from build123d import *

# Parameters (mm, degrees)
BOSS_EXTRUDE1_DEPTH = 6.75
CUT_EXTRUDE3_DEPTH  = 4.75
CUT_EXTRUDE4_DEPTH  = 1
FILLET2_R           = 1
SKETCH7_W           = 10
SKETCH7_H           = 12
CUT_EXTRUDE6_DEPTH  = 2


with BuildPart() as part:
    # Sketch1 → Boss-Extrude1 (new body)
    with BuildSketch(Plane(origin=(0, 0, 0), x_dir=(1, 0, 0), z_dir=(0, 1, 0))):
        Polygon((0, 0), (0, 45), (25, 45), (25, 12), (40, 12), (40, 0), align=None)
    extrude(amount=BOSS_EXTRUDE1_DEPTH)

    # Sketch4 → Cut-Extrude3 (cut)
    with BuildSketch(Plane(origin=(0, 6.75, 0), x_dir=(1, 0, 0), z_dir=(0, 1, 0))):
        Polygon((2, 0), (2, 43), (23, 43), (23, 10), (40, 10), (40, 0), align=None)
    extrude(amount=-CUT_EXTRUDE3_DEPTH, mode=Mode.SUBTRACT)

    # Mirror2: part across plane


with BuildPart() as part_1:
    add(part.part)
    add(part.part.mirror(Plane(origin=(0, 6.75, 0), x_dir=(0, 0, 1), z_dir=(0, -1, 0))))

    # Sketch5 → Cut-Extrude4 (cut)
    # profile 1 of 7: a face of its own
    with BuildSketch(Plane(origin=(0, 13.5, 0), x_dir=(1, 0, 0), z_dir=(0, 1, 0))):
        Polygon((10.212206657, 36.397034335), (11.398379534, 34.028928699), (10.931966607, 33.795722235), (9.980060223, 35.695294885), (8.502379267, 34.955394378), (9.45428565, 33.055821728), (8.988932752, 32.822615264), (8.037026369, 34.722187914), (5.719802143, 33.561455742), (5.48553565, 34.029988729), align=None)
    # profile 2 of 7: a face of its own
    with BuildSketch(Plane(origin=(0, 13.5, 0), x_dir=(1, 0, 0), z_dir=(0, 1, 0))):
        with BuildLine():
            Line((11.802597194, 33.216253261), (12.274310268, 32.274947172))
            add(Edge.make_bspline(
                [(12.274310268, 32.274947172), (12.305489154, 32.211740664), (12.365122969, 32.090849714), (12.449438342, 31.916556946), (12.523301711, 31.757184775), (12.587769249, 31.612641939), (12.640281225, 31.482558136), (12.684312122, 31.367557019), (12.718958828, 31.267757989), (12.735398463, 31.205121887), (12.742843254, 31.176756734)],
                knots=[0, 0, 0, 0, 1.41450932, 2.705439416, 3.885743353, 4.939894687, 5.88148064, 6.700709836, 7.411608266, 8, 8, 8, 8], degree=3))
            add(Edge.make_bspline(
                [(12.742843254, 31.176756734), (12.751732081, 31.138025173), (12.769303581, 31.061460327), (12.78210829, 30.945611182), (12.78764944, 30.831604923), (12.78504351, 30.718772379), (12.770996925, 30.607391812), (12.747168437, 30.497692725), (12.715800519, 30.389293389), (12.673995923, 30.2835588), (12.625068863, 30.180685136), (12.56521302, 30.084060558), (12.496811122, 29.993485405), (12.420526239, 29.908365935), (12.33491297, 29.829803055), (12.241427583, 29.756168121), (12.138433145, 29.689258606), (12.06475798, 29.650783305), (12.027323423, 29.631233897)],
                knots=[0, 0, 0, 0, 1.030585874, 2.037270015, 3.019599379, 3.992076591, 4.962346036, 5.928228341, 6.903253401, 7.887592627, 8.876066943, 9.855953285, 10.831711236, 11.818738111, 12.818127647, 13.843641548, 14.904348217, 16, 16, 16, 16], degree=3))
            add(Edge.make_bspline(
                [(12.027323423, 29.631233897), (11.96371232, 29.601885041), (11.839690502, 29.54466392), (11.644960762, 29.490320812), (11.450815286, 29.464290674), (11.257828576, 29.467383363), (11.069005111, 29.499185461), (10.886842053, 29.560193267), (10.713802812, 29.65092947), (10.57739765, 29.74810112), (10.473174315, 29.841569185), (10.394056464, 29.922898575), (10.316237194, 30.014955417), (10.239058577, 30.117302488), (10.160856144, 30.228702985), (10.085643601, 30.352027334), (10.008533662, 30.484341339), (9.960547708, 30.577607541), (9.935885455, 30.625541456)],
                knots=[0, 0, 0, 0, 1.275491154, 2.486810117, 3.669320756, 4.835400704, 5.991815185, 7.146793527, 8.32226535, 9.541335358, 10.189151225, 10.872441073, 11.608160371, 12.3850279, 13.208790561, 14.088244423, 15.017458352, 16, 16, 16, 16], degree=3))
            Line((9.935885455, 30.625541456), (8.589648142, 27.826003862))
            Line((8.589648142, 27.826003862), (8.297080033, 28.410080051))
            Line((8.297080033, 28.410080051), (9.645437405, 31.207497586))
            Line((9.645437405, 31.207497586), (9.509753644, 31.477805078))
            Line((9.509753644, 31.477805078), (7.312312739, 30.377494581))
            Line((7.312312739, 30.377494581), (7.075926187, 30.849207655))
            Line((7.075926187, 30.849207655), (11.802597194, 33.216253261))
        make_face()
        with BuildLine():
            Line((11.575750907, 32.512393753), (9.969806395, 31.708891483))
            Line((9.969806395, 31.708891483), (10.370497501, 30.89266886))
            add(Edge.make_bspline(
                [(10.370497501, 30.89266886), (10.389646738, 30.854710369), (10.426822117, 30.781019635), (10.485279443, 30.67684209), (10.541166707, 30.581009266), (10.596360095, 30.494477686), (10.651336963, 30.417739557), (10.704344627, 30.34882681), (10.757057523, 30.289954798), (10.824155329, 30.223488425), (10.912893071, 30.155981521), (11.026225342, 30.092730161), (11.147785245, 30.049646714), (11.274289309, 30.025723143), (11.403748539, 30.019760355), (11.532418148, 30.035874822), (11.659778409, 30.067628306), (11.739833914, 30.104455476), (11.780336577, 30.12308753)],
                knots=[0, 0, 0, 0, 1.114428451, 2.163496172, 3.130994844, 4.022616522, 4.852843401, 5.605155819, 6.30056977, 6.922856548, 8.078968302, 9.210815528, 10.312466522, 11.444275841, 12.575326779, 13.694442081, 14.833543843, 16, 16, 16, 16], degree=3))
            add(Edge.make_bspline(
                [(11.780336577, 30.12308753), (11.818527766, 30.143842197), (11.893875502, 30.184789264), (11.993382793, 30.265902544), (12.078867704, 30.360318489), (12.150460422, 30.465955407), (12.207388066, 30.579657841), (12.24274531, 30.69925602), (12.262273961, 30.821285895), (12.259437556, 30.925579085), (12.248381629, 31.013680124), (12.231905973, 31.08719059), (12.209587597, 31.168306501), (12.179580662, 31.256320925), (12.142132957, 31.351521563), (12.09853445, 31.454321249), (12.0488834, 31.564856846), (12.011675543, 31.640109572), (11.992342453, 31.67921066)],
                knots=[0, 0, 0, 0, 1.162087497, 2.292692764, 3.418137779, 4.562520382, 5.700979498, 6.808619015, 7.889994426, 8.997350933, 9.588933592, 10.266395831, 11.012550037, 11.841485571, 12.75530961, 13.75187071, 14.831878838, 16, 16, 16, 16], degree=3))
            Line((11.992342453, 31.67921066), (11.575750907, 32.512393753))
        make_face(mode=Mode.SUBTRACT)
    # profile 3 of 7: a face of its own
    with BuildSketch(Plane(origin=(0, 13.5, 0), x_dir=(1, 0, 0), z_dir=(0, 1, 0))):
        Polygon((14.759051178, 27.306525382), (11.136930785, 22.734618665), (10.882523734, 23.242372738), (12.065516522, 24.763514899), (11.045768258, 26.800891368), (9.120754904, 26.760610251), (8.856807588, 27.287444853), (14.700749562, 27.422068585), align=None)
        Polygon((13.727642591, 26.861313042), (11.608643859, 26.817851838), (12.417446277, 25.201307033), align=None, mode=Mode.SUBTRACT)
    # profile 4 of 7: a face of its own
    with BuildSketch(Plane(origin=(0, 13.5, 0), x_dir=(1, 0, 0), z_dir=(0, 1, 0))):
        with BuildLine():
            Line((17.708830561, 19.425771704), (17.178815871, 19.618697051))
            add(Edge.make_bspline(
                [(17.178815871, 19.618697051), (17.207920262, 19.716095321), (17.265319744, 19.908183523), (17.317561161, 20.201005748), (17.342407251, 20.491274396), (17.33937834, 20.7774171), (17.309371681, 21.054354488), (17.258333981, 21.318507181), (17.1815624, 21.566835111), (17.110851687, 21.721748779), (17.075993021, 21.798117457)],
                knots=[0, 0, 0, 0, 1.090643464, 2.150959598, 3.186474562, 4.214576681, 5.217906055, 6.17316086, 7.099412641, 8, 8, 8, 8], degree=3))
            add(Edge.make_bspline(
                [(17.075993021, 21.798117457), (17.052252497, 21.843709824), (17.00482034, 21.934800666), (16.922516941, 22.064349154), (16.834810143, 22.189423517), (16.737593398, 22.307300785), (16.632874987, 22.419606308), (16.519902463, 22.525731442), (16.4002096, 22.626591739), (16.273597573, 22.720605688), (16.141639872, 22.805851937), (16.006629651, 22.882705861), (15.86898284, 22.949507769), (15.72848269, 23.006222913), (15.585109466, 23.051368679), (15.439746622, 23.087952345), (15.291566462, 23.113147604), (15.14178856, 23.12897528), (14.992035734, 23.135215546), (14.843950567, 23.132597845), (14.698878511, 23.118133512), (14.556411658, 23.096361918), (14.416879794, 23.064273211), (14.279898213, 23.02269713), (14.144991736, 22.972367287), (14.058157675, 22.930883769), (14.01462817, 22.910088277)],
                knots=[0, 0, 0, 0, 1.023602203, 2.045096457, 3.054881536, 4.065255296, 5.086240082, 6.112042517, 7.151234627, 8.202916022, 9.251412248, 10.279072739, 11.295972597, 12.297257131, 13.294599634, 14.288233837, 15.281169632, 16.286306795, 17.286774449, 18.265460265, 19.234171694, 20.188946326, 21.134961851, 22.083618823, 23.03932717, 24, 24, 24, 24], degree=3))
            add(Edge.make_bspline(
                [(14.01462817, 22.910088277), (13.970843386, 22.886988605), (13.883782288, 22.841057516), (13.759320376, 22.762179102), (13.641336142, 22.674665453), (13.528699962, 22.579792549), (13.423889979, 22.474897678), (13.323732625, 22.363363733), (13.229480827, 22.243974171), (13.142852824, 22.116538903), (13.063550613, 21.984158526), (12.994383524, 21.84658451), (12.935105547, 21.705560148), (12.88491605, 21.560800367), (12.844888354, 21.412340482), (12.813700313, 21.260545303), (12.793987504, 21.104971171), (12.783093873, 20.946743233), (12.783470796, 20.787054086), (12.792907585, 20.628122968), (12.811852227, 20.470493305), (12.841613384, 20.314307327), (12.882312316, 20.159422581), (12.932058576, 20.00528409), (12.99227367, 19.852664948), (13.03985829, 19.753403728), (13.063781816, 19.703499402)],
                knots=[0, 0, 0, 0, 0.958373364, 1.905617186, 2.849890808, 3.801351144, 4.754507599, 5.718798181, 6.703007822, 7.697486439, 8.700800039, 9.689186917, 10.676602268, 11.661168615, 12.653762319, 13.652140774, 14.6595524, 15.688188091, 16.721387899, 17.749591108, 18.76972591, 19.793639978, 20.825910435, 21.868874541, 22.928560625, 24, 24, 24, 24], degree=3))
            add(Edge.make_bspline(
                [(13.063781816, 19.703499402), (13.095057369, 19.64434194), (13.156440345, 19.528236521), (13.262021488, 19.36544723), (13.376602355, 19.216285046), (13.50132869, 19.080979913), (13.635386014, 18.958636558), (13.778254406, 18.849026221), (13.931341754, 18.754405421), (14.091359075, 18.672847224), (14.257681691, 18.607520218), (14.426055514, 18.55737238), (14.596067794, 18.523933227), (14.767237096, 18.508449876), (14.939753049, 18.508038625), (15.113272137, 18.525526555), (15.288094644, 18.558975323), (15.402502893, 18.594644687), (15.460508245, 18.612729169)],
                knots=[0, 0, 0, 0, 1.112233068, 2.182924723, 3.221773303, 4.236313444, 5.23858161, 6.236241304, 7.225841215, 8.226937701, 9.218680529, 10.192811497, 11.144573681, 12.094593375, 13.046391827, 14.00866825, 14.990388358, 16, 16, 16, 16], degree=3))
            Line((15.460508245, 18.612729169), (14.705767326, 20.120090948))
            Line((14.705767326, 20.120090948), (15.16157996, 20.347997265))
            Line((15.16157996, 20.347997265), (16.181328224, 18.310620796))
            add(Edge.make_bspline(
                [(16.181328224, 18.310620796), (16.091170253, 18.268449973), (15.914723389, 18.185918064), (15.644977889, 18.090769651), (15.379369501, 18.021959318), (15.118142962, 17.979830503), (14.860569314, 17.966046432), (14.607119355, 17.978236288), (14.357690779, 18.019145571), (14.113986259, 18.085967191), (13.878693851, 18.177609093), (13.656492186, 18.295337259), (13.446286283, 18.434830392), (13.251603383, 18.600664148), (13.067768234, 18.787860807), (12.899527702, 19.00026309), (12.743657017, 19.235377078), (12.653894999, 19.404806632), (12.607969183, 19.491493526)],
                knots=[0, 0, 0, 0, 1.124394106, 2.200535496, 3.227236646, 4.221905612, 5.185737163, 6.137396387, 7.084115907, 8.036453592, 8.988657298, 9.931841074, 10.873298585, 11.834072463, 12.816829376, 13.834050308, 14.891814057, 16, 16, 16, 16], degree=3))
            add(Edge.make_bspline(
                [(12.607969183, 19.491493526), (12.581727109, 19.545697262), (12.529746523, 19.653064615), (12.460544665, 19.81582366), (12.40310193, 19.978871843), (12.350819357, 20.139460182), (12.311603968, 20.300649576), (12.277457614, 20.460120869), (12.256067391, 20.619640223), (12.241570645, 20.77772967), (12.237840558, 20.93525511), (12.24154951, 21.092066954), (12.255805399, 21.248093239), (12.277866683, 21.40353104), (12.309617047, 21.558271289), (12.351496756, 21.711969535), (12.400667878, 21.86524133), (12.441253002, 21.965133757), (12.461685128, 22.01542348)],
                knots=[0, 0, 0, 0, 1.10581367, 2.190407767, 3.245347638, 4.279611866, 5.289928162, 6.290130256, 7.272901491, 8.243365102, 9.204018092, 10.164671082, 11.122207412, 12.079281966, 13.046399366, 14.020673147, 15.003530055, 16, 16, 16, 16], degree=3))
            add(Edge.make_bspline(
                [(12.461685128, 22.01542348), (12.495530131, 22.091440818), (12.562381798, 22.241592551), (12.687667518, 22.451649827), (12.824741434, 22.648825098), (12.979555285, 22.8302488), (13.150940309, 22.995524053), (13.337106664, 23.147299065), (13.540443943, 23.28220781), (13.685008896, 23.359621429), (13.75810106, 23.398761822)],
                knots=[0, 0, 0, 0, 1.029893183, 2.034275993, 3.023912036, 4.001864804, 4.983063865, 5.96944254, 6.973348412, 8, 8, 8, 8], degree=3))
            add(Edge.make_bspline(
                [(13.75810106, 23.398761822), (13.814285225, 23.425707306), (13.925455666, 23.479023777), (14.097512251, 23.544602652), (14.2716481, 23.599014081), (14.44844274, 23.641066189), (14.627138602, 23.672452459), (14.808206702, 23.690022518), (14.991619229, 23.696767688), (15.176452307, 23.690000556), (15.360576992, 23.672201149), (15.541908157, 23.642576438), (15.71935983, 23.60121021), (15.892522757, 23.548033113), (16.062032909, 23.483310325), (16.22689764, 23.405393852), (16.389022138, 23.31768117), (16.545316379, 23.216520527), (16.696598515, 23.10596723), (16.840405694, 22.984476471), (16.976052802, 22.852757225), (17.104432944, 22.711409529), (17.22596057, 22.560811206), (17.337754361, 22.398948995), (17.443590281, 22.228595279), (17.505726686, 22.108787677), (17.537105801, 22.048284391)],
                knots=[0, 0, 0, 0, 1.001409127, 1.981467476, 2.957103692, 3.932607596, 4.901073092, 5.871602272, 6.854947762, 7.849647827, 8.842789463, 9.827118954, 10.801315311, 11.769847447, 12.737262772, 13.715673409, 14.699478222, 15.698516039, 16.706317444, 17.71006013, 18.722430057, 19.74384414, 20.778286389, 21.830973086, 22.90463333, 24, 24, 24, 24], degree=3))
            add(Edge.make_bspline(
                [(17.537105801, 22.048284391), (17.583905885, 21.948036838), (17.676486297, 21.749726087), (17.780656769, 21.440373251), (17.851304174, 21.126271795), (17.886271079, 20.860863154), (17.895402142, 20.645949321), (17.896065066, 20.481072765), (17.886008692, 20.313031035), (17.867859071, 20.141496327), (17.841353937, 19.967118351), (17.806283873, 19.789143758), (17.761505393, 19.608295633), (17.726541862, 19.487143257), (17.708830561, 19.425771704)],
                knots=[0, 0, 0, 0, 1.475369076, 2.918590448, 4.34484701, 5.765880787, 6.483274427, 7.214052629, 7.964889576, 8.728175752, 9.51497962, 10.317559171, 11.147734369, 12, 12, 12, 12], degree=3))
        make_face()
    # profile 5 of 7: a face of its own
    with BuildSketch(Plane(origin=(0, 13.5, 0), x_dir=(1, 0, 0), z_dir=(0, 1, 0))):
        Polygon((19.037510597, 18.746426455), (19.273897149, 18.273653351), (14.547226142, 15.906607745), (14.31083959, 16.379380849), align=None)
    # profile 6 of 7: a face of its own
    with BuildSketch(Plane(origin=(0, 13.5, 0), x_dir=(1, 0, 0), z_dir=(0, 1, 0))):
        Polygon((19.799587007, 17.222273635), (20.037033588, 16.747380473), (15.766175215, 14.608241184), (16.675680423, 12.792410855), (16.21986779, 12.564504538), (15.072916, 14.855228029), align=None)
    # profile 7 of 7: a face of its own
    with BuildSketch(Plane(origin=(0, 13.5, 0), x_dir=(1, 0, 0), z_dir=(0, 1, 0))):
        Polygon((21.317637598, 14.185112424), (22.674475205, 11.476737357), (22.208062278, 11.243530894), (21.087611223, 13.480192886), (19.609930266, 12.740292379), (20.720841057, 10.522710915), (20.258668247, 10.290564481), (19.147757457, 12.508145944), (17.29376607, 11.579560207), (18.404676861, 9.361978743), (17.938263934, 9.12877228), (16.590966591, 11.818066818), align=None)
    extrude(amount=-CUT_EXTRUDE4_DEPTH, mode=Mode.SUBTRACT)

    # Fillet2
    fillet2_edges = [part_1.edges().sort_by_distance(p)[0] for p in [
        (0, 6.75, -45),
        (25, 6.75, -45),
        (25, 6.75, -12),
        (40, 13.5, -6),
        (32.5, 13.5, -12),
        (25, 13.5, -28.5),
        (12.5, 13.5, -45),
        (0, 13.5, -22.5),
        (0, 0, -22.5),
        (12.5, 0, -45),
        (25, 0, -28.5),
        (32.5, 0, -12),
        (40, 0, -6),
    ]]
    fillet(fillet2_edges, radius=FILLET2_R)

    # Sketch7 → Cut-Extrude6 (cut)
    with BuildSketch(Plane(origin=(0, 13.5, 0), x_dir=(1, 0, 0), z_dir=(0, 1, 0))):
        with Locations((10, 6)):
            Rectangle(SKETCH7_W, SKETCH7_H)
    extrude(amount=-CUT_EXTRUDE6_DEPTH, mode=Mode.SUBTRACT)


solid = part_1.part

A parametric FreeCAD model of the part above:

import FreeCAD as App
import Part
import Sketcher
Q = App.Units.Quantity


def edges_at(feature, points):
    """Names of the edges that pass closest to the given points."""
    edges = feature.Shape.Edges
    near = lambda p: min(range(len(edges)), key=lambda i: edges[i].distToShape(Part.Vertex(*p))[0])
    return sorted({f"Edge{near(p) + 1}" for p in points})


def add_polygon(sketch, points):
    """Adds a closed chain of lines whose ends are joined by coincident constraints."""
    first, n = sketch.GeometryCount, len(points)
    for a, b in zip(points, points[1:] + points[:1]):
        sketch.addGeometry(Part.LineSegment(App.Vector(*a, 0), App.Vector(*b, 0)), False)
    for i in range(n):
        sketch.addConstraint(Sketcher.Constraint("Coincident", first + i, 2, first + (i + 1) % n, 1))

doc = App.newDocument("Part")
body = doc.addObject("PartDesign::Body", "Body")

sketch1 = body.newObject("Sketcher::SketchObject", "Sketch")
sketch1.AttachmentSupport = (doc.getObject("XZ_Plane"), [""])
sketch1.MapMode = "FlatFace"
add_polygon(sketch1, [(0, -45), (0, 0), (40, 0), (40, -12), (25, -12), (25, -45)])
sketch1.addConstraint(Sketcher.Constraint("Vertical", 0))
sketch1.addConstraint(Sketcher.Constraint("Horizontal", 1))
sketch1.addConstraint(Sketcher.Constraint("Vertical", 2))
sketch1.addConstraint(Sketcher.Constraint("Horizontal", 3))
sketch1.addConstraint(Sketcher.Constraint("Vertical", 4))
sketch1.addConstraint(Sketcher.Constraint("Horizontal", 5))
sketch1.addConstraint(Sketcher.Constraint("Coincident", 0, 2, -1, 1))
sketch1.addConstraint(Sketcher.Constraint("DistanceX", 1, 1, 1, 2, Q("40 mm")))
sketch1.addConstraint(Sketcher.Constraint("DistanceX", 3, 2, 3, 1, Q("15 mm")))
sketch1.addConstraint(Sketcher.Constraint("DistanceY", 0, 1, 0, 2, Q("45 mm")))
sketch1.addConstraint(Sketcher.Constraint("DistanceY", 2, 2, 2, 1, Q("12 mm")))
pad1 = body.newObject("PartDesign::Pad", "Pad")
pad1.Profile = sketch1
pad1.Length = 6.75
pad1.Reversed = True

sketch2 = body.newObject("Sketcher::SketchObject", "Sketch001")
sketch2.AttachmentSupport = (doc.getObject("XZ_Plane"), [""])
sketch2.MapMode = "FlatFace"
sketch2.AttachmentOffset = App.Placement(App.Vector(0, 0, -6.75), App.Rotation())
add_polygon(sketch2, [(2, -43), (2, 0), (40, 0), (40, -10), (23, -10), (23, -43)])
sketch2.addConstraint(Sketcher.Constraint("Vertical", 0))
sketch2.addConstraint(Sketcher.Constraint("Horizontal", 1))
sketch2.addConstraint(Sketcher.Constraint("Vertical", 2))
sketch2.addConstraint(Sketcher.Constraint("Horizontal", 3))
sketch2.addConstraint(Sketcher.Constraint("Vertical", 4))
sketch2.addConstraint(Sketcher.Constraint("Horizontal", 5))
sketch2.addConstraint(Sketcher.Constraint("PointOnObject", 0, 2, -1))
sketch2.addConstraint(Sketcher.Constraint("DistanceX", 1, 1, 1, 2, Q("38 mm")))
sketch2.addConstraint(Sketcher.Constraint("DistanceX", 3, 2, 3, 1, Q("17 mm")))
sketch2.addConstraint(Sketcher.Constraint("DistanceY", 0, 1, 0, 2, Q("43 mm")))
sketch2.addConstraint(Sketcher.Constraint("DistanceY", 2, 2, 2, 1, Q("10 mm")))
sketch2.addConstraint(Sketcher.Constraint("DistanceX", -1, 1, 0, 2, Q("2 mm")))
pocket1 = body.newObject("PartDesign::Pocket", "Pocket")
pocket1.Profile = sketch2
pocket1.Length = 4.75
pocket1.Reversed = True
body2 = doc.addObject("PartDesign::Body", "Body001")
doc.recompute()

body2.BaseFeature = body
doc.recompute()

mirroring = doc.addObject("Part::Mirroring", "Mirroring")
mirroring.Source = body
mirroring.Base = App.Vector(0, 6.75, 0)
mirroring.Normal = App.Vector(0, -1, 0)
body3 = doc.addObject("PartDesign::Body", "Body002")
body3.BaseFeature = mirroring
boolean = body2.newObject("PartDesign::Boolean", "Boolean")
boolean.Type = "Fuse"
boolean.addObjects([body3])
doc.recompute()

sketch3 = body2.newObject("Sketcher::SketchObject", "Sketch002")
sketch3.AttachmentSupport = (doc.getObject("XZ_Plane001"), [""])
sketch3.MapMode = "FlatFace"
sketch3.AttachmentOffset = App.Placement(App.Vector(0, 0, -13.5), App.Rotation())
add_polygon(sketch3, [(11.39838, -34.028929), (10.212207, -36.397034), (5.485536, -34.029989), (5.719802, -33.561456), (8.037026, -34.722188), (8.988933, -32.822615), (9.454286, -33.055822), (8.502379, -34.955394), (9.98006, -35.695295), (10.931967, -33.795722)])
sketch3.addGeometry(Part.LineSegment(App.Vector(12.27431, -32.274947, 0), App.Vector(11.802597, -33.216253, 0)), False)
sketch3.addGeometry(Part.LineSegment(App.Vector(11.802597, -33.216253, 0), App.Vector(7.075926, -30.849208, 0)), False)
sketch3.addGeometry(Part.LineSegment(App.Vector(7.075926, -30.849208, 0), App.Vector(7.312313, -30.377495, 0)), False)
sketch3.addGeometry(Part.LineSegment(App.Vector(7.312313, -30.377495, 0), App.Vector(9.509754, -31.477805, 0)), False)
sketch3.addGeometry(Part.LineSegment(App.Vector(9.509754, -31.477805, 0), App.Vector(9.645437, -31.207498, 0)), False)
sketch3.addGeometry(Part.LineSegment(App.Vector(9.645437, -31.207498, 0), App.Vector(8.29708, -28.41008, 0)), False)
sketch3.addGeometry(Part.LineSegment(App.Vector(8.29708, -28.41008, 0), App.Vector(8.589648, -27.826004, 0)), False)
sketch3.addGeometry(Part.LineSegment(App.Vector(8.589648, -27.826004, 0), App.Vector(9.935885, -30.625541, 0)), False)
sketch3.addGeometry(Part.BSplineCurve([App.Vector(12.027323, -29.631234, 0), App.Vector(11.963712, -29.601885, 0), App.Vector(11.839691, -29.544664, 0), App.Vector(11.644961, -29.490321, 0), App.Vector(11.450815, -29.464291, 0), App.Vector(11.257829, -29.467383, 0), App.Vector(11.069005, -29.499185, 0), App.Vector(10.886842, -29.560193, 0), App.Vector(10.713803, -29.650929, 0), App.Vector(10.577398, -29.748101, 0), App.Vector(10.473174, -29.841569, 0), App.Vector(10.394056, -29.922899, 0), App.Vector(10.316237, -30.014955, 0), App.Vector(10.239059, -30.117302, 0), App.Vector(10.160856, -30.228703, 0), App.Vector(10.085644, -30.352027, 0), App.Vector(10.008534, -30.484341, 0), App.Vector(9.960548, -30.577608, 0), App.Vector(9.935885, -30.625541, 0)], [4, 1, 1, 1, 1, 1, 1, 1, 1, 1, 1, 1, 1, 1, 1, 1, 4], [0, 1.275491154, 2.486810117, 3.669320756, 4.835400704, 5.991815185, 7.146793527, 8.32226535, 9.541335358, 10.189151225, 10.872441073, 11.608160371, 12.3850279, 13.208790561, 14.088244423, 15.017458352, 16], False, 3, [1, 1, 1, 1, 1, 1, 1, 1, 1, 1, 1, 1, 1, 1, 1, 1, 1, 1, 1], False), False)
sketch3.addGeometry(Part.BSplineCurve([App.Vector(12.742843, -31.176757, 0), App.Vector(12.751732, -31.138025, 0), App.Vector(12.769304, -31.06146, 0), App.Vector(12.782108, -30.945611, 0), App.Vector(12.787649, -30.831605, 0), App.Vector(12.785044, -30.718772, 0), App.Vector(12.770997, -30.607392, 0), App.Vector(12.747168, -30.497693, 0), App.Vector(12.715801, -30.389293, 0), App.Vector(12.673996, -30.283559, 0), App.Vector(12.625069, -30.180685, 0), App.Vector(12.565213, -30.084061, 0), App.Vector(12.496811, -29.993485, 0), App.Vector(12.420526, -29.908366, 0), App.Vector(12.334913, -29.829803, 0), App.Vector(12.241428, -29.756168, 0), App.Vector(12.138433, -29.689259, 0), App.Vector(12.064758, -29.650783, 0), App.Vector(12.027323, -29.631234, 0)], [4, 1, 1, 1, 1, 1, 1, 1, 1, 1, 1, 1, 1, 1, 1, 1, 4], [0, 1.030585874, 2.037270015, 3.019599379, 3.992076591, 4.962346036, 5.928228341, 6.903253401, 7.887592627, 8.876066943, 9.855953285, 10.831711236, 11.818738111, 12.818127647, 13.843641548, 14.904348217, 16], False, 3, [1, 1, 1, 1, 1, 1, 1, 1, 1, 1, 1, 1, 1, 1, 1, 1, 1, 1, 1], False), False)
sketch3.addGeometry(Part.BSplineCurve([App.Vector(12.27431, -32.274947, 0), App.Vector(12.305489, -32.211741, 0), App.Vector(12.365123, -32.09085, 0), App.Vector(12.449438, -31.916557, 0), App.Vector(12.523302, -31.757185, 0), App.Vector(12.587769, -31.612642, 0), App.Vector(12.640281, -31.482558, 0), App.Vector(12.684312, -31.367557, 0), App.Vector(12.718959, -31.267758, 0), App.Vector(12.735398, -31.205122, 0), App.Vector(12.742843, -31.176757, 0)], [4, 1, 1, 1, 1, 1, 1, 1, 4], [0, 1.41450932, 2.705439416, 3.885743353, 4.939894687, 5.88148064, 6.700709836, 7.411608266, 8], False, 3, [1, 1, 1, 1, 1, 1, 1, 1, 1, 1, 1], False), False)
sketch3.addGeometry(Part.LineSegment(App.Vector(11.575751, -32.512394, 0), App.Vector(11.992342, -31.679211, 0)), False)
sketch3.addGeometry(Part.BSplineCurve([App.Vector(11.780337, -30.123088, 0), App.Vector(11.818528, -30.143842, 0), App.Vector(11.893876, -30.184789, 0), App.Vector(11.993383, -30.265903, 0), App.Vector(12.078868, -30.360318, 0), App.Vector(12.15046, -30.465955, 0), App.Vector(12.207388, -30.579658, 0), App.Vector(12.242745, -30.699256, 0), App.Vector(12.262274, -30.821286, 0), App.Vector(12.259438, -30.925579, 0), App.Vector(12.248382, -31.01368, 0), App.Vector(12.231906, -31.087191, 0), App.Vector(12.209588, -31.168307, 0), App.Vector(12.179581, -31.256321, 0), App.Vector(12.142133, -31.351522, 0), App.Vector(12.098534, -31.454321, 0), App.Vector(12.048883, -31.564857, 0), App.Vector(12.011676, -31.64011, 0), App.Vector(11.992342, -31.679211, 0)], [4, 1, 1, 1, 1, 1, 1, 1, 1, 1, 1, 1, 1, 1, 1, 1, 4], [0, 1.162087497, 2.292692764, 3.418137779, 4.562520382, 5.700979498, 6.808619015, 7.889994426, 8.997350933, 9.588933592, 10.266395831, 11.012550037, 11.841485571, 12.75530961, 13.75187071, 14.831878838, 16], False, 3, [1, 1, 1, 1, 1, 1, 1, 1, 1, 1, 1, 1, 1, 1, 1, 1, 1, 1, 1], False), False)
sketch3.addGeometry(Part.BSplineCurve([App.Vector(10.370498, -30.892669, 0), App.Vector(10.389647, -30.85471, 0), App.Vector(10.426822, -30.78102, 0), App.Vector(10.485279, -30.676842, 0), App.Vector(10.541167, -30.581009, 0), App.Vector(10.59636, -30.494478, 0), App.Vector(10.651337, -30.41774, 0), App.Vector(10.704345, -30.348827, 0), App.Vector(10.757058, -30.289955, 0), App.Vector(10.824155, -30.223488, 0), App.Vector(10.912893, -30.155982, 0), App.Vector(11.026225, -30.09273, 0), App.Vector(11.147785, -30.049647, 0), App.Vector(11.274289, -30.025723, 0), App.Vector(11.403749, -30.01976, 0), App.Vector(11.532418, -30.035875, 0), App.Vector(11.659778, -30.067628, 0), App.Vector(11.739834, -30.104455, 0), App.Vector(11.780337, -30.123088, 0)], [4, 1, 1, 1, 1, 1, 1, 1, 1, 1, 1, 1, 1, 1, 1, 1, 4], [0, 1.114428451, 2.163496172, 3.130994844, 4.022616522, 4.852843401, 5.605155819, 6.30056977, 6.922856548, 8.078968302, 9.210815528, 10.312466522, 11.444275841, 12.575326779, 13.694442081, 14.833543843, 16], False, 3, [1, 1, 1, 1, 1, 1, 1, 1, 1, 1, 1, 1, 1, 1, 1, 1, 1, 1, 1], False), False)
sketch3.addGeometry(Part.LineSegment(App.Vector(10.370498, -30.892669, 0), App.Vector(9.969806, -31.708891, 0)), False)
sketch3.addGeometry(Part.LineSegment(App.Vector(9.969806, -31.708891, 0), App.Vector(11.575751, -32.512394, 0)), False)
add_polygon(sketch3, [(11.136931, -22.734619), (14.759051, -27.306525), (14.70075, -27.422069), (8.856808, -27.287445), (9.120755, -26.76061), (11.045768, -26.800891), (12.065517, -24.763515), (10.882524, -23.242373)])
add_polygon(sketch3, [(13.727643, -26.861313), (12.417446, -25.201307), (11.608644, -26.817852)])
sketch3.addGeometry(Part.LineSegment(App.Vector(17.178816, -19.618697, 0), App.Vector(17.708831, -19.425772, 0)), False)
sketch3.addGeometry(Part.BSplineCurve([App.Vector(17.537106, -22.048284, 0), App.Vector(17.583906, -21.948037, 0), App.Vector(17.676486, -21.749726, 0), App.Vector(17.780657, -21.440373, 0), App.Vector(17.851304, -21.126272, 0), App.Vector(17.886271, -20.860863, 0), App.Vector(17.895402, -20.645949, 0), App.Vector(17.896065, -20.481073, 0), App.Vector(17.886009, -20.313031, 0), App.Vector(17.867859, -20.141496, 0), App.Vector(17.841354, -19.967118, 0), App.Vector(17.806284, -19.789144, 0), App.Vector(17.761505, -19.608296, 0), App.Vector(17.726542, -19.487143, 0), App.Vector(17.708831, -19.425772, 0)], [4, 1, 1, 1, 1, 1, 1, 1, 1, 1, 1, 1, 4], [0, 1.475369076, 2.918590448, 4.34484701, 5.765880787, 6.483274427, 7.214052629, 7.964889576, 8.728175752, 9.51497962, 10.317559171, 11.147734369, 12], False, 3, [1, 1, 1, 1, 1, 1, 1, 1, 1, 1, 1, 1, 1, 1, 1], False), False)
sketch3.addGeometry(Part.BSplineCurve([App.Vector(13.758101, -23.398762, 0), App.Vector(13.814285, -23.425707, 0), App.Vector(13.925456, -23.479024, 0), App.Vector(14.097512, -23.544603, 0), App.Vector(14.271648, -23.599014, 0), App.Vector(14.448443, -23.641066, 0), App.Vector(14.627139, -23.672452, 0), App.Vector(14.808207, -23.690023, 0), App.Vector(14.991619, -23.696768, 0), App.Vector(15.176452, -23.690001, 0), App.Vector(15.360577, -23.672201, 0), App.Vector(15.541908, -23.642576, 0), App.Vector(15.71936, -23.60121, 0), App.Vector(15.892523, -23.548033, 0), App.Vector(16.062033, -23.48331, 0), App.Vector(16.226898, -23.405394, 0), App.Vector(16.389022, -23.317681, 0), App.Vector(16.545316, -23.216521, 0), App.Vector(16.696599, -23.105967, 0), App.Vector(16.840406, -22.984476, 0), App.Vector(16.976053, -22.852757, 0), App.Vector(17.104433, -22.71141, 0), App.Vector(17.225961, -22.560811, 0), App.Vector(17.337754, -22.398949, 0), App.Vector(17.44359, -22.228595, 0), App.Vector(17.505727, -22.108788, 0), App.Vector(17.537106, -22.048284, 0)], [4, 1, 1, 1, 1, 1, 1, 1, 1, 1, 1, 1, 1, 1, 1, 1, 1, 1, 1, 1, 1, 1, 1, 1, 4], [0, 1.001409127, 1.981467476, 2.957103692, 3.932607596, 4.901073092, 5.871602272, 6.854947762, 7.849647827, 8.842789463, 9.827118954, 10.801315311, 11.769847447, 12.737262772, 13.715673409, 14.699478222, 15.698516039, 16.706317444, 17.71006013, 18.722430057, 19.74384414, 20.778286389, 21.830973086, 22.90463333, 24], False, 3, [1, 1, 1, 1, 1, 1, 1, 1, 1, 1, 1, 1, 1, 1, 1, 1, 1, 1, 1, 1, 1, 1, 1, 1, 1, 1, 1], False), False)
sketch3.addGeometry(Part.BSplineCurve([App.Vector(12.461685, -22.015423, 0), App.Vector(12.49553, -22.091441, 0), App.Vector(12.562382, -22.241593, 0), App.Vector(12.687668, -22.45165, 0), App.Vector(12.824741, -22.648825, 0), App.Vector(12.979555, -22.830249, 0), App.Vector(13.15094, -22.995524, 0), App.Vector(13.337107, -23.147299, 0), App.Vector(13.540444, -23.282208, 0), App.Vector(13.685009, -23.359621, 0), App.Vector(13.758101, -23.398762, 0)], [4, 1, 1, 1, 1, 1, 1, 1, 4], [0, 1.029893183, 2.034275993, 3.023912036, 4.001864804, 4.983063865, 5.96944254, 6.973348412, 8], False, 3, [1, 1, 1, 1, 1, 1, 1, 1, 1, 1, 1], False), False)
sketch3.addGeometry(Part.BSplineCurve([App.Vector(12.607969, -19.491494, 0), App.Vector(12.581727, -19.545697, 0), App.Vector(12.529747, -19.653065, 0), App.Vector(12.460545, -19.815824, 0), App.Vector(12.403102, -19.978872, 0), App.Vector(12.350819, -20.13946, 0), App.Vector(12.311604, -20.30065, 0), App.Vector(12.277458, -20.460121, 0), App.Vector(12.256067, -20.61964, 0), App.Vector(12.241571, -20.77773, 0), App.Vector(12.237841, -20.935255, 0), App.Vector(12.24155, -21.092067, 0), App.Vector(12.255805, -21.248093, 0), App.Vector(12.277867, -21.403531, 0), App.Vector(12.309617, -21.558271, 0), App.Vector(12.351497, -21.71197, 0), App.Vector(12.400668, -21.865241, 0), App.Vector(12.441253, -21.965134, 0), App.Vector(12.461685, -22.015423, 0)], [4, 1, 1, 1, 1, 1, 1, 1, 1, 1, 1, 1, 1, 1, 1, 1, 4], [0, 1.10581367, 2.190407767, 3.245347638, 4.279611866, 5.289928162, 6.290130256, 7.272901491, 8.243365102, 9.204018092, 10.164671082, 11.122207412, 12.079281966, 13.046399366, 14.020673147, 15.003530055, 16], False, 3, [1, 1, 1, 1, 1, 1, 1, 1, 1, 1, 1, 1, 1, 1, 1, 1, 1, 1, 1], False), False)
sketch3.addGeometry(Part.BSplineCurve([App.Vector(16.181328, -18.310621, 0), App.Vector(16.09117, -18.26845, 0), App.Vector(15.914723, -18.185918, 0), App.Vector(15.644978, -18.09077, 0), App.Vector(15.37937, -18.021959, 0), App.Vector(15.118143, -17.979831, 0), App.Vector(14.860569, -17.966046, 0), App.Vector(14.607119, -17.978236, 0), App.Vector(14.357691, -18.019146, 0), App.Vector(14.113986, -18.085967, 0), App.Vector(13.878694, -18.177609, 0), App.Vector(13.656492, -18.295337, 0), App.Vector(13.446286, -18.43483, 0), App.Vector(13.251603, -18.600664, 0), App.Vector(13.067768, -18.787861, 0), App.Vector(12.899528, -19.000263, 0), App.Vector(12.743657, -19.235377, 0), App.Vector(12.653895, -19.404807, 0), App.Vector(12.607969, -19.491494, 0)], [4, 1, 1, 1, 1, 1, 1, 1, 1, 1, 1, 1, 1, 1, 1, 1, 4], [0, 1.124394106, 2.200535496, 3.227236646, 4.221905612, 5.185737163, 6.137396387, 7.084115907, 8.036453592, 8.988657298, 9.931841074, 10.873298585, 11.834072463, 12.816829376, 13.834050308, 14.891814057, 16], False, 3, [1, 1, 1, 1, 1, 1, 1, 1, 1, 1, 1, 1, 1, 1, 1, 1, 1, 1, 1], False), False)
sketch3.addGeometry(Part.LineSegment(App.Vector(16.181328, -18.310621, 0), App.Vector(15.16158, -20.347997, 0)), False)
sketch3.addGeometry(Part.LineSegment(App.Vector(15.16158, -20.347997, 0), App.Vector(14.705767, -20.120091, 0)), False)
sketch3.addGeometry(Part.LineSegment(App.Vector(14.705767, -20.120091, 0), App.Vector(15.460508, -18.612729, 0)), False)
sketch3.addGeometry(Part.BSplineCurve([App.Vector(13.063782, -19.703499, 0), App.Vector(13.095057, -19.644342, 0), App.Vector(13.15644, -19.528237, 0), App.Vector(13.262021, -19.365447, 0), App.Vector(13.376602, -19.216285, 0), App.Vector(13.501329, -19.08098, 0), App.Vector(13.635386, -18.958637, 0), App.Vector(13.778254, -18.849026, 0), App.Vector(13.931342, -18.754405, 0), App.Vector(14.091359, -18.672847, 0), App.Vector(14.257682, -18.60752, 0), App.Vector(14.426056, -18.557372, 0), App.Vector(14.596068, -18.523933, 0), App.Vector(14.767237, -18.50845, 0), App.Vector(14.939753, -18.508039, 0), App.Vector(15.113272, -18.525527, 0), App.Vector(15.288095, -18.558975, 0), App.Vector(15.402503, -18.594645, 0), App.Vector(15.460508, -18.612729, 0)], [4, 1, 1, 1, 1, 1, 1, 1, 1, 1, 1, 1, 1, 1, 1, 1, 4], [0, 1.112233068, 2.182924723, 3.221773303, 4.236313444, 5.23858161, 6.236241304, 7.225841215, 8.226937701, 9.218680529, 10.192811497, 11.144573681, 12.094593375, 13.046391827, 14.00866825, 14.990388358, 16], False, 3, [1, 1, 1, 1, 1, 1, 1, 1, 1, 1, 1, 1, 1, 1, 1, 1, 1, 1, 1], False), False)
sketch3.addGeometry(Part.BSplineCurve([App.Vector(14.014628, -22.910088, 0), App.Vector(13.970843, -22.886989, 0), App.Vector(13.883782, -22.841058, 0), App.Vector(13.75932, -22.762179, 0), App.Vector(13.641336, -22.674665, 0), App.Vector(13.5287, -22.579793, 0), App.Vector(13.42389, -22.474898, 0), App.Vector(13.323733, -22.363364, 0), App.Vector(13.229481, -22.243974, 0), App.Vector(13.142853, -22.116539, 0), App.Vector(13.063551, -21.984159, 0), App.Vector(12.994384, -21.846585, 0), App.Vector(12.935106, -21.70556, 0), App.Vector(12.884916, -21.5608, 0), App.Vector(12.844888, -21.41234, 0), App.Vector(12.8137, -21.260545, 0), App.Vector(12.793988, -21.104971, 0), App.Vector(12.783094, -20.946743, 0), App.Vector(12.783471, -20.787054, 0), App.Vector(12.792908, -20.628123, 0), App.Vector(12.811852, -20.470493, 0), App.Vector(12.841613, -20.314307, 0), App.Vector(12.882312, -20.159423, 0), App.Vector(12.932059, -20.005284, 0), App.Vector(12.992274, -19.852665, 0), App.Vector(13.039858, -19.753404, 0), App.Vector(13.063782, -19.703499, 0)], [4, 1, 1, 1, 1, 1, 1, 1, 1, 1, 1, 1, 1, 1, 1, 1, 1, 1, 1, 1, 1, 1, 1, 1, 4], [0, 0.958373364, 1.905617186, 2.849890808, 3.801351144, 4.754507599, 5.718798181, 6.703007822, 7.697486439, 8.700800039, 9.689186917, 10.676602268, 11.661168615, 12.653762319, 13.652140774, 14.6595524, 15.688188091, 16.721387899, 17.749591108, 18.76972591, 19.793639978, 20.825910435, 21.868874541, 22.928560625, 24], False, 3, [1, 1, 1, 1, 1, 1, 1, 1, 1, 1, 1, 1, 1, 1, 1, 1, 1, 1, 1, 1, 1, 1, 1, 1, 1, 1, 1], False), False)
sketch3.addGeometry(Part.BSplineCurve([App.Vector(17.075993, -21.798117, 0), App.Vector(17.052252, -21.84371, 0), App.Vector(17.00482, -21.934801, 0), App.Vector(16.922517, -22.064349, 0), App.Vector(16.83481, -22.189424, 0), App.Vector(16.737593, -22.307301, 0), App.Vector(16.632875, -22.419606, 0), App.Vector(16.519902, -22.525731, 0), App.Vector(16.40021, -22.626592, 0), App.Vector(16.273598, -22.720606, 0), App.Vector(16.14164, -22.805852, 0), App.Vector(16.00663, -22.882706, 0), App.Vector(15.868983, -22.949508, 0), App.Vector(15.728483, -23.006223, 0), App.Vector(15.585109, -23.051369, 0), App.Vector(15.439747, -23.087952, 0), App.Vector(15.291566, -23.113148, 0), App.Vector(15.141789, -23.128975, 0), App.Vector(14.992036, -23.135216, 0), App.Vector(14.843951, -23.132598, 0), App.Vector(14.698879, -23.118134, 0), App.Vector(14.556412, -23.096362, 0), App.Vector(14.41688, -23.064273, 0), App.Vector(14.279898, -23.022697, 0), App.Vector(14.144992, -22.972367, 0), App.Vector(14.058158, -22.930884, 0), App.Vector(14.014628, -22.910088, 0)], [4, 1, 1, 1, 1, 1, 1, 1, 1, 1, 1, 1, 1, 1, 1, 1, 1, 1, 1, 1, 1, 1, 1, 1, 4], [0, 1.023602203, 2.045096457, 3.054881536, 4.065255296, 5.086240082, 6.112042517, 7.151234627, 8.202916022, 9.251412248, 10.279072739, 11.295972597, 12.297257131, 13.294599634, 14.288233837, 15.281169632, 16.286306795, 17.286774449, 18.265460265, 19.234171694, 20.188946326, 21.134961851, 22.083618823, 23.03932717, 24], False, 3, [1, 1, 1, 1, 1, 1, 1, 1, 1, 1, 1, 1, 1, 1, 1, 1, 1, 1, 1, 1, 1, 1, 1, 1, 1, 1, 1], False), False)
sketch3.addGeometry(Part.BSplineCurve([App.Vector(17.178816, -19.618697, 0), App.Vector(17.20792, -19.716095, 0), App.Vector(17.26532, -19.908184, 0), App.Vector(17.317561, -20.201006, 0), App.Vector(17.342407, -20.491274, 0), App.Vector(17.339378, -20.777417, 0), App.Vector(17.309372, -21.054354, 0), App.Vector(17.258334, -21.318507, 0), App.Vector(17.181562, -21.566835, 0), App.Vector(17.110852, -21.721749, 0), App.Vector(17.075993, -21.798117, 0)], [4, 1, 1, 1, 1, 1, 1, 1, 4], [0, 1.090643464, 2.150959598, 3.186474562, 4.214576681, 5.217906055, 6.17316086, 7.099412641, 8], False, 3, [1, 1, 1, 1, 1, 1, 1, 1, 1, 1, 1], False), False)
add_polygon(sketch3, [(19.273897, -18.273653), (19.037511, -18.746426), (14.31084, -16.379381), (14.547226, -15.906608)])
add_polygon(sketch3, [(20.037034, -16.74738), (19.799587, -17.222274), (15.072916, -14.855228), (16.219868, -12.564505), (16.67568, -12.792411), (15.766175, -14.608241)])
add_polygon(sketch3, [(22.674475, -11.476737), (21.317638, -14.185112), (16.590967, -11.818067), (17.938264, -9.128772), (18.404677, -9.361979), (17.293766, -11.57956), (19.147757, -12.508146), (20.258668, -10.290564), (20.720841, -10.522711), (19.60993, -12.740292), (21.087611, -13.480193), (22.208062, -11.243531)])
sketch3.addConstraint(Sketcher.Constraint("Block", 18))
sketch3.addConstraint(Sketcher.Constraint("Block", 19))
sketch3.addConstraint(Sketcher.Constraint("Block", 20))
sketch3.addConstraint(Sketcher.Constraint("Block", 22))
sketch3.addConstraint(Sketcher.Constraint("Block", 23))
sketch3.addConstraint(Sketcher.Constraint("Block", 38))
sketch3.addConstraint(Sketcher.Constraint("Block", 39))
sketch3.addConstraint(Sketcher.Constraint("Block", 40))
sketch3.addConstraint(Sketcher.Constraint("Block", 41))
sketch3.addConstraint(Sketcher.Constraint("Block", 42))
sketch3.addConstraint(Sketcher.Constraint("Block", 46))
sketch3.addConstraint(Sketcher.Constraint("Block", 47))
sketch3.addConstraint(Sketcher.Constraint("Block", 48))
sketch3.addConstraint(Sketcher.Constraint("Block", 49))
sketch3.addConstraint(Sketcher.Constraint("Coincident", 10, 2, 11, 1))
sketch3.addConstraint(Sketcher.Constraint("Coincident", 11, 2, 12, 1))
sketch3.addConstraint(Sketcher.Constraint("Coincident", 12, 2, 13, 1))
sketch3.addConstraint(Sketcher.Constraint("Coincident", 13, 2, 14, 1))
sketch3.addConstraint(Sketcher.Constraint("Coincident", 14, 2, 15, 1))
sketch3.addConstraint(Sketcher.Constraint("Coincident", 15, 2, 16, 1))
sketch3.addConstraint(Sketcher.Constraint("Coincident", 16, 2, 17, 1))
sketch3.addConstraint(Sketcher.Constraint("Coincident", 17, 2, 18, 2))
sketch3.addConstraint(Sketcher.Constraint("Coincident", 20, 1, 10, 1))
sketch3.addConstraint(Sketcher.Constraint("Coincident", 21, 2, 22, 2))
sketch3.addConstraint(Sketcher.Constraint("Coincident", 23, 1, 24, 1))
sketch3.addConstraint(Sketcher.Constraint("Coincident", 24, 2, 25, 1))
sketch3.addConstraint(Sketcher.Constraint("Coincident", 25, 2, 21, 1))
sketch3.addConstraint(Sketcher.Constraint("Coincident", 37, 2, 38, 2))
sketch3.addConstraint(Sketcher.Constraint("Coincident", 42, 1, 43, 1))
sketch3.addConstraint(Sketcher.Constraint("Coincident", 43, 2, 44, 1))
sketch3.addConstraint(Sketcher.Constraint("Coincident", 44, 2, 45, 1))
sketch3.addConstraint(Sketcher.Constraint("Coincident", 45, 2, 46, 2))
sketch3.addConstraint(Sketcher.Constraint("Coincident", 49, 1, 37, 1))
sketch3.addConstraint(Sketcher.Constraint("DistanceX", 25, 2, 27, 2, Q("3.124999 mm")))
sketch3.addConstraint(Sketcher.Constraint("DistanceX", 35, 2, 36, 2, Q("2.118999 mm")))
sketch3.addConstraint(Sketcher.Constraint("Distance", 67, Q("0.5172 mm")))
sketch3.addConstraint(Sketcher.Constraint("DistanceY", 3, 2, 1, 2, Q("0.692199 mm")))
sketch3.addConstraint(Sketcher.Constraint("DistanceY", 7, 2, 6, 2, Q("0.739901 mm")))
sketch3.addConstraint(Sketcher.Constraint("DistanceY", 8, 2, 5, 2, Q("0.739901 mm")))
sketch3.addConstraint(Sketcher.Constraint("DistanceX", 11, 2, 3, 2, Q("0.9611 mm")))
sketch3.addConstraint(Sketcher.Constraint("DistanceY", 13, 2, 16, 2, Q("3.651801 mm")))
sketch3.addConstraint(Sketcher.Constraint("DistanceX", 5, 2, 17, 2, Q("0.4816 mm")))
sketch3.addConstraint(Sketcher.Constraint("DistanceX", 25, 2, 26, 2, Q("3.1833 mm")))
sketch3.addConstraint(Sketcher.Constraint("DistanceX", 16, 2, 27, 2, Q("6.111101 mm")))
sketch3.addConstraint(Sketcher.Constraint("DistanceY", 36, 2, 31, 2, Q("2.097798 mm")))
sketch3.addConstraint(Sketcher.Constraint("DistanceX", 33, 2, 37, 2, Q("6.5719 mm")))
sketch3.addConstraint(Sketcher.Constraint("DistanceY", 32, 2, 37, 2, Q("3.816601 mm")))
sketch3.addConstraint(Sketcher.Constraint("DistanceY", 37, 2, 54, 2, Q("2.203498 mm")))
sketch3.addConstraint(Sketcher.Constraint("DistanceY", 45, 2, 55, 2, Q("3.757501 mm")))
sketch3.addConstraint(Sketcher.Constraint("DistanceY", 60, 2, 57, 2, Q("1.392702 mm")))
sketch3.addConstraint(Sketcher.Constraint("DistanceX", 56, 2, 61, 2, Q("0.371099 mm")))
sketch3.addConstraint(Sketcher.Constraint("DistanceX", 61, 2, 64, 2, Q("0.702799 mm")))
sketch3.addConstraint(Sketcher.Constraint("DistanceX", 61, 2, 66, 2, Q("3.667702 mm")))
sketch3.addConstraint(Sketcher.Constraint("DistanceY", 69, 2, 68, 2, Q("0.739901 mm")))
sketch3.addConstraint(Sketcher.Constraint("Distance", 0, Q("2.648571 mm")))
sketch3.addConstraint(Sketcher.Constraint("Distance", 1, Q("5.286239 mm")))
sketch3.addConstraint(Sketcher.Constraint("Distance", 7, Q("1.652572 mm")))
sketch3.addConstraint(Sketcher.Constraint("Distance", 11, Q("5.286239 mm")))
sketch3.addConstraint(Sketcher.Constraint("Distance", 12, Q("0.527628 mm")))
sketch3.addConstraint(Sketcher.Constraint("Distance", 14, Q("0.30245 mm")))
sketch3.addConstraint(Sketcher.Constraint("Distance", 24, Q("0.90927 mm")))
sketch3.addConstraint(Sketcher.Constraint("Distance", 27, Q("0.129419 mm")))
sketch3.addConstraint(Sketcher.Constraint("Distance", 31, Q("2.27833 mm")))
sketch3.addConstraint(Sketcher.Constraint("Distance", 35, Q("1.807589 mm")))
sketch3.addConstraint(Sketcher.Constraint("Distance", 43, Q("2.27833 mm")))
sketch3.addConstraint(Sketcher.Constraint("Distance", 51, Q("5.286239 mm")))
sketch3.addConstraint(Sketcher.Constraint("Distance", 53, Q("5.286239 mm")))
sketch3.addConstraint(Sketcher.Constraint("Distance", 55, Q("5.286239 mm")))
sketch3.addConstraint(Sketcher.Constraint("Distance", 56, Q("2.561818 mm")))
sketch3.addConstraint(Sketcher.Constraint("Distance", 58, Q("2.030872 mm")))
sketch3.addConstraint(Sketcher.Constraint("Distance", 60, Q("3.029241 mm")))
sketch3.addConstraint(Sketcher.Constraint("Distance", 61, Q("5.286239 mm")))
sketch3.addConstraint(Sketcher.Constraint("Distance", 62, Q("3.007909 mm")))
sketch3.addConstraint(Sketcher.Constraint("Distance", 64, Q("2.48028 mm")))
sketch3.addConstraint(Sketcher.Constraint("Distance", 66, Q("2.48028 mm")))
sketch3.addConstraint(Sketcher.Constraint("Distance", 68, Q("2.48028 mm")))
sketch3.addConstraint(Sketcher.Constraint("Distance", 69, Q("1.652572 mm")))
sketch3.addConstraint(Sketcher.Constraint("DistanceY", 1, 2, -1, 1, Q("34.029989 mm")))
sketch3.addConstraint(Sketcher.Constraint("DistanceY", 5, 2, -1, 1, Q("33.055822 mm")))
sketch3.addConstraint(Sketcher.Constraint("DistanceX", -1, 1, 6, 2, Q("8.502379 mm")))
sketch3.addConstraint(Sketcher.Constraint("DistanceX", -1, 1, 9, 2, Q("11.39838 mm")))
sketch3.addConstraint(Sketcher.Constraint("DistanceY", 9, 2, -1, 1, Q("34.028929 mm")))
sketch3.addConstraint(Sketcher.Constraint("DistanceX", -1, 1, 15, 2, Q("8.29708 mm")))
sketch3.addConstraint(Sketcher.Constraint("DistanceY", 15, 2, -1, 1, Q("28.41008 mm")))
sketch3.addConstraint(Sketcher.Constraint("DistanceX", -1, 1, 16, 2, Q("8.589648 mm")))
sketch3.addConstraint(Sketcher.Constraint("DistanceY", 24, 2, -1, 1, Q("31.708891 mm")))
sketch3.addConstraint(Sketcher.Constraint("DistanceY", 27, 2, -1, 1, Q("27.422069 mm")))
sketch3.addConstraint(Sketcher.Constraint("DistanceY", 29, 2, -1, 1, Q("26.76061 mm")))
sketch3.addConstraint(Sketcher.Constraint("DistanceX", -1, 1, 30, 2, Q("11.045768 mm")))
sketch3.addConstraint(Sketcher.Constraint("DistanceY", 30, 2, -1, 1, Q("26.800891 mm")))
sketch3.addConstraint(Sketcher.Constraint("DistanceY", 33, 2, -1, 1, Q("22.734619 mm")))
sketch3.addConstraint(Sketcher.Constraint("DistanceY", 35, 2, -1, 1, Q("26.817852 mm")))
sketch3.addConstraint(Sketcher.Constraint("DistanceX", -1, 1, 43, 2, Q("15.16158 mm")))
sketch3.addConstraint(Sketcher.Constraint("DistanceY", 44, 2, -1, 1, Q("20.120091 mm")))
sketch3.addConstraint(Sketcher.Constraint("DistanceX", -1, 1, 50, 2, Q("19.037511 mm")))
sketch3.addConstraint(Sketcher.Constraint("DistanceX", -1, 1, 51, 2, Q("14.31084 mm")))
sketch3.addConstraint(Sketcher.Constraint("DistanceY", 51, 2, -1, 1, Q("16.379381 mm")))
sketch3.addConstraint(Sketcher.Constraint("DistanceX", -1, 1, 57, 2, Q("16.67568 mm")))
sketch3.addConstraint(Sketcher.Constraint("DistanceY", 57, 2, -1, 1, Q("12.792411 mm")))
sketch3.addConstraint(Sketcher.Constraint("DistanceY", 58, 2, -1, 1, Q("14.608241 mm")))
sketch3.addConstraint(Sketcher.Constraint("DistanceY", 59, 2, -1, 1, Q("16.74738 mm")))
sketch3.addConstraint(Sketcher.Constraint("DistanceY", 63, 2, -1, 1, Q("9.361979 mm")))
sketch3.addConstraint(Sketcher.Constraint("DistanceY", 64, 2, -1, 1, Q("11.57956 mm")))
sketch3.addConstraint(Sketcher.Constraint("DistanceX", -1, 1, 66, 2, Q("20.258668 mm")))
sketch3.addConstraint(Sketcher.Constraint("DistanceX", -1, 1, 67, 2, Q("20.720841 mm")))
sketch3.addConstraint(Sketcher.Constraint("DistanceY", 67, 2, -1, 1, Q("10.522711 mm")))
sketch3.addConstraint(Sketcher.Constraint("DistanceX", -1, 1, 68, 2, Q("19.60993 mm")))
sketch3.addConstraint(Sketcher.Constraint("DistanceY", 70, 2, -1, 1, Q("11.243531 mm")))
sketch3.addConstraint(Sketcher.Constraint("DistanceX", 1, 2, 0, 2, Q("4.726671 mm")))
sketch3.addConstraint(Sketcher.Constraint("DistanceY", 0, 2, 2, 2, Q("2.835579 mm")))
sketch3.addConstraint(Sketcher.Constraint("DistanceX", 1, 2, 3, 2, Q("2.551491 mm")))
sketch3.addConstraint(Sketcher.Constraint("DistanceX", 2, 2, 4, 2, Q("3.269131 mm")))
sketch3.addConstraint(Sketcher.Constraint("DistanceY", 2, 2, 4, 2, Q("0.73884 mm")))
sketch3.addConstraint(Sketcher.Constraint("DistanceY", 6, 2, 4, 2, Q("2.132779 mm")))
sketch3.addConstraint(Sketcher.Constraint("DistanceX", 5, 2, 8, 2, Q("1.477681 mm")))
sketch3.addConstraint(Sketcher.Constraint("DistanceX", 8, 2, 10, 2, Q("0.870631 mm")))
sketch3.addConstraint(Sketcher.Constraint("DistanceY", 8, 2, 10, 2, Q("0.579469 mm")))
sketch3.addConstraint(Sketcher.Constraint("DistanceX", 12, 2, 4, 2, Q("1.67662 mm")))
sketch3.addConstraint(Sketcher.Constraint("DistanceY", 4, 2, 12, 2, Q("2.445121 mm")))
sketch3.addConstraint(Sketcher.Constraint("DistanceX", 4, 2, 13, 2, Q("0.520821 mm")))
sketch3.addConstraint(Sketcher.Constraint("DistanceY", 4, 2, 13, 2, Q("1.34481 mm")))
sketch3.addConstraint(Sketcher.Constraint("DistanceX", 5, 2, 14, 2, Q("0.191152 mm")))
sketch3.addConstraint(Sketcher.Constraint("DistanceY", 10, 2, 25, 2, Q("0.70386 mm")))
sketch3.addConstraint(Sketcher.Constraint("DistanceX", 16, 2, 28, 2, Q("0.267159 mm")))
sketch3.addConstraint(Sketcher.Constraint("DistanceY", 16, 2, 28, 2, Q("0.538559 mm")))
sketch3.addConstraint(Sketcher.Constraint("DistanceX", 29, 2, 17, 2, Q("0.815131 mm")))
sketch3.addConstraint(Sketcher.Constraint("DistanceX", 30, 2, 31, 2, Q("1.019748 mm")))
sketch3.addConstraint(Sketcher.Constraint("DistanceX", 29, 2, 32, 2, Q("1.761769 mm")))
sketch3.addConstraint(Sketcher.Constraint("DistanceX", 31, 2, 34, 2, Q("0.35193 mm")))
sketch3.addConstraint(Sketcher.Constraint("DistanceY", 34, 2, 33, 2, Q("2.466688 mm")))
sketch3.addConstraint(Sketcher.Constraint("DistanceX", 31, 2, 44, 2, Q("2.640251 mm")))
sketch3.addConstraint(Sketcher.Constraint("DistanceY", 45, 2, 52, 2, Q("2.706121 mm")))
sketch3.addConstraint(Sketcher.Constraint("DistanceX", 52, 2, 44, 2, Q("0.158541 mm")))
sketch3.addConstraint(Sketcher.Constraint("DistanceY", 37, 2, 53, 2, Q("1.152118 mm")))
sketch3.addConstraint(Sketcher.Constraint("DistanceX", 53, 2, 54, 2, Q("0.52569 mm")))
sketch3.addConstraint(Sketcher.Constraint("DistanceX", 58, 2, 59, 2, Q("4.270858 mm")))
sketch3.addConstraint(Sketcher.Constraint("DistanceX", 54, 2, 60, 2, Q("1.518051 mm")))
sketch3.addConstraint(Sketcher.Constraint("DistanceY", 57, 2, 62, 2, Q("3.663639 mm")))
sketch3.addConstraint(Sketcher.Constraint("DistanceX", 64, 2, 65, 2, Q("1.853991 mm")))
sketch3.addConstraint(Sketcher.Constraint("DistanceX", 67, 2, 70, 2, Q("1.487221 mm")))
sketch3.addConstraint(Sketcher.Constraint("Distance", 71, Q("0.521466 mm")))
pocket2 = body2.newObject("PartDesign::Pocket", "Pocket001")
pocket2.Profile = sketch3
pocket2.Length = 1
pocket2.Reversed = True
doc.recompute()

fillet = body2.newObject("PartDesign::Fillet", "Fillet")
fillet.Base = (pocket2, edges_at(pocket2, [
    (0, 6.75, -45),
    (25, 6.75, -45),
    (25, 6.75, -12),
    (40, 13.5, -6),
    (32.5, 13.5, -12),
    (25, 13.5, -28.5),
    (12.5, 13.5, -45),
    (0, 13.5, -22.5),
    (0, 0, -22.5),
    (12.5, 0, -45),
    (25, 0, -28.5),
    (32.5, 0, -12),
    (40, 0, -6),
]))
fillet.Radius = 1

sketch4 = body2.newObject("Sketcher::SketchObject", "Sketch003")
sketch4.AttachmentSupport = (doc.getObject("XZ_Plane001"), [""])
sketch4.MapMode = "FlatFace"
sketch4.AttachmentOffset = App.Placement(App.Vector(0, 0, -13.5), App.Rotation())
add_polygon(sketch4, [(5, -12), (5, 0), (15, 0), (15, -12)])
sketch4.addConstraint(Sketcher.Constraint("Vertical", 0))
sketch4.addConstraint(Sketcher.Constraint("Horizontal", 1))
sketch4.addConstraint(Sketcher.Constraint("Vertical", 2))
sketch4.addConstraint(Sketcher.Constraint("Horizontal", 3))
sketch4.addConstraint(Sketcher.Constraint("PointOnObject", 0, 2, -1))
sketch4.addConstraint(Sketcher.Constraint("DistanceX", 1, 1, 1, 2, Q("10 mm")))
sketch4.addConstraint(Sketcher.Constraint("DistanceY", 0, 1, 0, 2, Q("12 mm")))
sketch4.addConstraint(Sketcher.Constraint("DistanceX", -1, 1, 0, 2, Q("5 mm")))
pocket3 = body2.newObject("PartDesign::Pocket", "Pocket002")
pocket3.Profile = sketch4
pocket3.Length = 2
pocket3.Reversed = True
mirroring.Visibility = False

doc.recompute()
